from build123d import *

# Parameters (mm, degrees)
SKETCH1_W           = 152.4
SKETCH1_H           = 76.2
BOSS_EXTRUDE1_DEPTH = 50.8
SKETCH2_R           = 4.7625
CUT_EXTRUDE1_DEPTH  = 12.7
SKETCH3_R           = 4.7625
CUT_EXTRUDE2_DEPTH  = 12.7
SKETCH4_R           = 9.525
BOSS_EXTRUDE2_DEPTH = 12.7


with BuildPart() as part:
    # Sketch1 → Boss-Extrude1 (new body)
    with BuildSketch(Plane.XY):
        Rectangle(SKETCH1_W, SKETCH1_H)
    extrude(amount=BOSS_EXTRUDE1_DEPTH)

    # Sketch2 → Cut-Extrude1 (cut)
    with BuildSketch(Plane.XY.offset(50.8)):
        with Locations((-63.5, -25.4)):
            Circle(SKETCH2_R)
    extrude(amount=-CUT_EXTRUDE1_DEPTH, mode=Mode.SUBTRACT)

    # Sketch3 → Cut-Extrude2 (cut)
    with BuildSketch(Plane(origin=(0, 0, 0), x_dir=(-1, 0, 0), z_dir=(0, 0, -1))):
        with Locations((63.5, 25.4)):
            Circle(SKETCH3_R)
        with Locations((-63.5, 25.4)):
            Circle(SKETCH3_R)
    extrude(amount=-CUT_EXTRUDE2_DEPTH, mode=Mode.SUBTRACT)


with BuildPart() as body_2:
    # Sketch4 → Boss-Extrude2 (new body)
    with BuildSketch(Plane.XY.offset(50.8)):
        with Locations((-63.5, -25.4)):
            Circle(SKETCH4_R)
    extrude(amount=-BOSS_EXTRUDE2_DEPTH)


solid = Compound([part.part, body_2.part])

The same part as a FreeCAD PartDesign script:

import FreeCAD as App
import Part
import Sketcher
Q = App.Units.Quantity

doc = App.newDocument("Part")
body = doc.addObject("PartDesign::Body", "Body")

# Sketch on XY plane
sketch1 = body.newObject("Sketcher::SketchObject", "Sketch")
sketch1.AttachmentSupport = (doc.getObject("XY_Plane"), [""])
sketch1.MapMode = "FlatFace"
sketch1.addGeometry([
    Part.LineSegment(App.Vector(-76, 38, 0), App.Vector(-76, -38, 0)),
    Part.LineSegment(App.Vector(-76, -38, 0), App.Vector(76, -38, 0)),
    Part.LineSegment(App.Vector(76, -38, 0), App.Vector(76, 38, 0)),
    Part.LineSegment(App.Vector(76, 38, 0), App.Vector(-76, 38, 0)),
], False)
sketch1.addConstraint([
    Sketcher.Constraint("Coincident", 0, 2, 1, 1),
    Sketcher.Constraint("Coincident", 1, 2, 2, 1),
    Sketcher.Constraint("Coincident", 2, 2, 3, 1),
    Sketcher.Constraint("Coincident", 3, 2, 0, 1),
    Sketcher.Constraint("Vertical", 0),
    Sketcher.Constraint("Horizontal", 1),
    Sketcher.Constraint("Vertical", 2),
    Sketcher.Constraint("Horizontal", 3),
    Sketcher.Constraint("Symmetric", 0, 2, 2, 2, -1, 1),
    Sketcher.Constraint("DistanceX", 1, 1, 1, 2, Q("6 in")),
    Sketcher.Constraint("DistanceY", 0, 2, 0, 1, Q("3 in")),
])
pad1 = body.newObject("PartDesign::Pad", "Pad")
pad1.Profile = sketch1
pad1.Length = Q("2 in")

# Sketch on XY plane
sketch2 = body.newObject("Sketcher::SketchObject", "Sketch001")
sketch2.AttachmentSupport = (doc.getObject("XY_Plane"), [""])
sketch2.MapMode = "FlatFace"
sketch2.AttachmentOffset = App.Placement(App.Vector(0, 0, 2 * 25.4), App.Rotation())
sketch2.addGeometry(Part.Circle(App.Vector(-63.5, -25.4, 0), App.Vector(0, 0, 1), 4.8), False)
sketch2.addConstraint([
    Sketcher.Constraint("Diameter", 0, Q("0.375 in")),
    Sketcher.Constraint("DistanceY", 0, 3, -1, 1, Q("1 in")),
    Sketcher.Constraint("DistanceX", 0, 3, -1, 1, Q("2.5 in")),
])
pocket1 = body.newObject("PartDesign::Pocket", "Pocket")
pocket1.Profile = sketch2
pocket1.Length = Q("0.5 in")

# Sketch on XY plane
sketch3 = body.newObject("Sketcher::SketchObject", "Sketch002")
sketch3.AttachmentSupport = (doc.getObject("XY_Plane"), [""])
sketch3.MapMode = "FlatFace"
sketch3.addGeometry([
    Part.Circle(App.Vector(-63.5, 25.4, 0), App.Vector(0, 0, 1), 4.8),
    Part.Circle(App.Vector(63.5, 25.4, 0), App.Vector(0, 0, 1), 4.8),
], False)
sketch3.addConstraint([
    Sketcher.Constraint("Equal", 0, 1),
    Sketcher.Constraint("Symmetric", 0, 3, 1, 3, -2),
    Sketcher.Constraint("Diameter", 0, Q("0.375 in")),
    Sketcher.Constraint("DistanceY", -1, 1, 0, 3, Q("1 in")),
    Sketcher.Constraint("DistanceX", 0, 3, 1, 3, Q("5 in")),
])
pocket2 = body.newObject("PartDesign::Pocket", "Pocket001")
pocket2.Profile = sketch3
pocket2.Length = Q("0.5 in")
pocket2.Reversed = True
body2 = doc.addObject("PartDesign::Body", "Body001")

# Sketch on XY plane
sketch4 = body2.newObject("Sketcher::SketchObject", "Sketch003")
sketch4.AttachmentSupport = (doc.getObject("XY_Plane001"), [""])
sketch4.MapMode = "FlatFace"
sketch4.AttachmentOffset = App.Placement(App.Vector(0, 0, 2 * 25.4), App.Rotation())
sketch4.addGeometry(Part.Circle(App.Vector(-64, -25, 0), App.Vector(0, 0, 1), 10), False)
sketch4.addConstraint([
    Sketcher.Constraint("Diameter", 0, Q("0.75 in")),
    Sketcher.Constraint("DistanceY", 0, 3, -1, 1, Q("1 in")),
    Sketcher.Constraint("DistanceX", 0, 3, -1, 1, Q("2.5 in")),
])
pad2 = body2.newObject("PartDesign::Pad", "Pad001")
pad2.Profile = sketch4
pad2.Length = Q("0.5 in")
pad2.Reversed = True

doc.recompute()
